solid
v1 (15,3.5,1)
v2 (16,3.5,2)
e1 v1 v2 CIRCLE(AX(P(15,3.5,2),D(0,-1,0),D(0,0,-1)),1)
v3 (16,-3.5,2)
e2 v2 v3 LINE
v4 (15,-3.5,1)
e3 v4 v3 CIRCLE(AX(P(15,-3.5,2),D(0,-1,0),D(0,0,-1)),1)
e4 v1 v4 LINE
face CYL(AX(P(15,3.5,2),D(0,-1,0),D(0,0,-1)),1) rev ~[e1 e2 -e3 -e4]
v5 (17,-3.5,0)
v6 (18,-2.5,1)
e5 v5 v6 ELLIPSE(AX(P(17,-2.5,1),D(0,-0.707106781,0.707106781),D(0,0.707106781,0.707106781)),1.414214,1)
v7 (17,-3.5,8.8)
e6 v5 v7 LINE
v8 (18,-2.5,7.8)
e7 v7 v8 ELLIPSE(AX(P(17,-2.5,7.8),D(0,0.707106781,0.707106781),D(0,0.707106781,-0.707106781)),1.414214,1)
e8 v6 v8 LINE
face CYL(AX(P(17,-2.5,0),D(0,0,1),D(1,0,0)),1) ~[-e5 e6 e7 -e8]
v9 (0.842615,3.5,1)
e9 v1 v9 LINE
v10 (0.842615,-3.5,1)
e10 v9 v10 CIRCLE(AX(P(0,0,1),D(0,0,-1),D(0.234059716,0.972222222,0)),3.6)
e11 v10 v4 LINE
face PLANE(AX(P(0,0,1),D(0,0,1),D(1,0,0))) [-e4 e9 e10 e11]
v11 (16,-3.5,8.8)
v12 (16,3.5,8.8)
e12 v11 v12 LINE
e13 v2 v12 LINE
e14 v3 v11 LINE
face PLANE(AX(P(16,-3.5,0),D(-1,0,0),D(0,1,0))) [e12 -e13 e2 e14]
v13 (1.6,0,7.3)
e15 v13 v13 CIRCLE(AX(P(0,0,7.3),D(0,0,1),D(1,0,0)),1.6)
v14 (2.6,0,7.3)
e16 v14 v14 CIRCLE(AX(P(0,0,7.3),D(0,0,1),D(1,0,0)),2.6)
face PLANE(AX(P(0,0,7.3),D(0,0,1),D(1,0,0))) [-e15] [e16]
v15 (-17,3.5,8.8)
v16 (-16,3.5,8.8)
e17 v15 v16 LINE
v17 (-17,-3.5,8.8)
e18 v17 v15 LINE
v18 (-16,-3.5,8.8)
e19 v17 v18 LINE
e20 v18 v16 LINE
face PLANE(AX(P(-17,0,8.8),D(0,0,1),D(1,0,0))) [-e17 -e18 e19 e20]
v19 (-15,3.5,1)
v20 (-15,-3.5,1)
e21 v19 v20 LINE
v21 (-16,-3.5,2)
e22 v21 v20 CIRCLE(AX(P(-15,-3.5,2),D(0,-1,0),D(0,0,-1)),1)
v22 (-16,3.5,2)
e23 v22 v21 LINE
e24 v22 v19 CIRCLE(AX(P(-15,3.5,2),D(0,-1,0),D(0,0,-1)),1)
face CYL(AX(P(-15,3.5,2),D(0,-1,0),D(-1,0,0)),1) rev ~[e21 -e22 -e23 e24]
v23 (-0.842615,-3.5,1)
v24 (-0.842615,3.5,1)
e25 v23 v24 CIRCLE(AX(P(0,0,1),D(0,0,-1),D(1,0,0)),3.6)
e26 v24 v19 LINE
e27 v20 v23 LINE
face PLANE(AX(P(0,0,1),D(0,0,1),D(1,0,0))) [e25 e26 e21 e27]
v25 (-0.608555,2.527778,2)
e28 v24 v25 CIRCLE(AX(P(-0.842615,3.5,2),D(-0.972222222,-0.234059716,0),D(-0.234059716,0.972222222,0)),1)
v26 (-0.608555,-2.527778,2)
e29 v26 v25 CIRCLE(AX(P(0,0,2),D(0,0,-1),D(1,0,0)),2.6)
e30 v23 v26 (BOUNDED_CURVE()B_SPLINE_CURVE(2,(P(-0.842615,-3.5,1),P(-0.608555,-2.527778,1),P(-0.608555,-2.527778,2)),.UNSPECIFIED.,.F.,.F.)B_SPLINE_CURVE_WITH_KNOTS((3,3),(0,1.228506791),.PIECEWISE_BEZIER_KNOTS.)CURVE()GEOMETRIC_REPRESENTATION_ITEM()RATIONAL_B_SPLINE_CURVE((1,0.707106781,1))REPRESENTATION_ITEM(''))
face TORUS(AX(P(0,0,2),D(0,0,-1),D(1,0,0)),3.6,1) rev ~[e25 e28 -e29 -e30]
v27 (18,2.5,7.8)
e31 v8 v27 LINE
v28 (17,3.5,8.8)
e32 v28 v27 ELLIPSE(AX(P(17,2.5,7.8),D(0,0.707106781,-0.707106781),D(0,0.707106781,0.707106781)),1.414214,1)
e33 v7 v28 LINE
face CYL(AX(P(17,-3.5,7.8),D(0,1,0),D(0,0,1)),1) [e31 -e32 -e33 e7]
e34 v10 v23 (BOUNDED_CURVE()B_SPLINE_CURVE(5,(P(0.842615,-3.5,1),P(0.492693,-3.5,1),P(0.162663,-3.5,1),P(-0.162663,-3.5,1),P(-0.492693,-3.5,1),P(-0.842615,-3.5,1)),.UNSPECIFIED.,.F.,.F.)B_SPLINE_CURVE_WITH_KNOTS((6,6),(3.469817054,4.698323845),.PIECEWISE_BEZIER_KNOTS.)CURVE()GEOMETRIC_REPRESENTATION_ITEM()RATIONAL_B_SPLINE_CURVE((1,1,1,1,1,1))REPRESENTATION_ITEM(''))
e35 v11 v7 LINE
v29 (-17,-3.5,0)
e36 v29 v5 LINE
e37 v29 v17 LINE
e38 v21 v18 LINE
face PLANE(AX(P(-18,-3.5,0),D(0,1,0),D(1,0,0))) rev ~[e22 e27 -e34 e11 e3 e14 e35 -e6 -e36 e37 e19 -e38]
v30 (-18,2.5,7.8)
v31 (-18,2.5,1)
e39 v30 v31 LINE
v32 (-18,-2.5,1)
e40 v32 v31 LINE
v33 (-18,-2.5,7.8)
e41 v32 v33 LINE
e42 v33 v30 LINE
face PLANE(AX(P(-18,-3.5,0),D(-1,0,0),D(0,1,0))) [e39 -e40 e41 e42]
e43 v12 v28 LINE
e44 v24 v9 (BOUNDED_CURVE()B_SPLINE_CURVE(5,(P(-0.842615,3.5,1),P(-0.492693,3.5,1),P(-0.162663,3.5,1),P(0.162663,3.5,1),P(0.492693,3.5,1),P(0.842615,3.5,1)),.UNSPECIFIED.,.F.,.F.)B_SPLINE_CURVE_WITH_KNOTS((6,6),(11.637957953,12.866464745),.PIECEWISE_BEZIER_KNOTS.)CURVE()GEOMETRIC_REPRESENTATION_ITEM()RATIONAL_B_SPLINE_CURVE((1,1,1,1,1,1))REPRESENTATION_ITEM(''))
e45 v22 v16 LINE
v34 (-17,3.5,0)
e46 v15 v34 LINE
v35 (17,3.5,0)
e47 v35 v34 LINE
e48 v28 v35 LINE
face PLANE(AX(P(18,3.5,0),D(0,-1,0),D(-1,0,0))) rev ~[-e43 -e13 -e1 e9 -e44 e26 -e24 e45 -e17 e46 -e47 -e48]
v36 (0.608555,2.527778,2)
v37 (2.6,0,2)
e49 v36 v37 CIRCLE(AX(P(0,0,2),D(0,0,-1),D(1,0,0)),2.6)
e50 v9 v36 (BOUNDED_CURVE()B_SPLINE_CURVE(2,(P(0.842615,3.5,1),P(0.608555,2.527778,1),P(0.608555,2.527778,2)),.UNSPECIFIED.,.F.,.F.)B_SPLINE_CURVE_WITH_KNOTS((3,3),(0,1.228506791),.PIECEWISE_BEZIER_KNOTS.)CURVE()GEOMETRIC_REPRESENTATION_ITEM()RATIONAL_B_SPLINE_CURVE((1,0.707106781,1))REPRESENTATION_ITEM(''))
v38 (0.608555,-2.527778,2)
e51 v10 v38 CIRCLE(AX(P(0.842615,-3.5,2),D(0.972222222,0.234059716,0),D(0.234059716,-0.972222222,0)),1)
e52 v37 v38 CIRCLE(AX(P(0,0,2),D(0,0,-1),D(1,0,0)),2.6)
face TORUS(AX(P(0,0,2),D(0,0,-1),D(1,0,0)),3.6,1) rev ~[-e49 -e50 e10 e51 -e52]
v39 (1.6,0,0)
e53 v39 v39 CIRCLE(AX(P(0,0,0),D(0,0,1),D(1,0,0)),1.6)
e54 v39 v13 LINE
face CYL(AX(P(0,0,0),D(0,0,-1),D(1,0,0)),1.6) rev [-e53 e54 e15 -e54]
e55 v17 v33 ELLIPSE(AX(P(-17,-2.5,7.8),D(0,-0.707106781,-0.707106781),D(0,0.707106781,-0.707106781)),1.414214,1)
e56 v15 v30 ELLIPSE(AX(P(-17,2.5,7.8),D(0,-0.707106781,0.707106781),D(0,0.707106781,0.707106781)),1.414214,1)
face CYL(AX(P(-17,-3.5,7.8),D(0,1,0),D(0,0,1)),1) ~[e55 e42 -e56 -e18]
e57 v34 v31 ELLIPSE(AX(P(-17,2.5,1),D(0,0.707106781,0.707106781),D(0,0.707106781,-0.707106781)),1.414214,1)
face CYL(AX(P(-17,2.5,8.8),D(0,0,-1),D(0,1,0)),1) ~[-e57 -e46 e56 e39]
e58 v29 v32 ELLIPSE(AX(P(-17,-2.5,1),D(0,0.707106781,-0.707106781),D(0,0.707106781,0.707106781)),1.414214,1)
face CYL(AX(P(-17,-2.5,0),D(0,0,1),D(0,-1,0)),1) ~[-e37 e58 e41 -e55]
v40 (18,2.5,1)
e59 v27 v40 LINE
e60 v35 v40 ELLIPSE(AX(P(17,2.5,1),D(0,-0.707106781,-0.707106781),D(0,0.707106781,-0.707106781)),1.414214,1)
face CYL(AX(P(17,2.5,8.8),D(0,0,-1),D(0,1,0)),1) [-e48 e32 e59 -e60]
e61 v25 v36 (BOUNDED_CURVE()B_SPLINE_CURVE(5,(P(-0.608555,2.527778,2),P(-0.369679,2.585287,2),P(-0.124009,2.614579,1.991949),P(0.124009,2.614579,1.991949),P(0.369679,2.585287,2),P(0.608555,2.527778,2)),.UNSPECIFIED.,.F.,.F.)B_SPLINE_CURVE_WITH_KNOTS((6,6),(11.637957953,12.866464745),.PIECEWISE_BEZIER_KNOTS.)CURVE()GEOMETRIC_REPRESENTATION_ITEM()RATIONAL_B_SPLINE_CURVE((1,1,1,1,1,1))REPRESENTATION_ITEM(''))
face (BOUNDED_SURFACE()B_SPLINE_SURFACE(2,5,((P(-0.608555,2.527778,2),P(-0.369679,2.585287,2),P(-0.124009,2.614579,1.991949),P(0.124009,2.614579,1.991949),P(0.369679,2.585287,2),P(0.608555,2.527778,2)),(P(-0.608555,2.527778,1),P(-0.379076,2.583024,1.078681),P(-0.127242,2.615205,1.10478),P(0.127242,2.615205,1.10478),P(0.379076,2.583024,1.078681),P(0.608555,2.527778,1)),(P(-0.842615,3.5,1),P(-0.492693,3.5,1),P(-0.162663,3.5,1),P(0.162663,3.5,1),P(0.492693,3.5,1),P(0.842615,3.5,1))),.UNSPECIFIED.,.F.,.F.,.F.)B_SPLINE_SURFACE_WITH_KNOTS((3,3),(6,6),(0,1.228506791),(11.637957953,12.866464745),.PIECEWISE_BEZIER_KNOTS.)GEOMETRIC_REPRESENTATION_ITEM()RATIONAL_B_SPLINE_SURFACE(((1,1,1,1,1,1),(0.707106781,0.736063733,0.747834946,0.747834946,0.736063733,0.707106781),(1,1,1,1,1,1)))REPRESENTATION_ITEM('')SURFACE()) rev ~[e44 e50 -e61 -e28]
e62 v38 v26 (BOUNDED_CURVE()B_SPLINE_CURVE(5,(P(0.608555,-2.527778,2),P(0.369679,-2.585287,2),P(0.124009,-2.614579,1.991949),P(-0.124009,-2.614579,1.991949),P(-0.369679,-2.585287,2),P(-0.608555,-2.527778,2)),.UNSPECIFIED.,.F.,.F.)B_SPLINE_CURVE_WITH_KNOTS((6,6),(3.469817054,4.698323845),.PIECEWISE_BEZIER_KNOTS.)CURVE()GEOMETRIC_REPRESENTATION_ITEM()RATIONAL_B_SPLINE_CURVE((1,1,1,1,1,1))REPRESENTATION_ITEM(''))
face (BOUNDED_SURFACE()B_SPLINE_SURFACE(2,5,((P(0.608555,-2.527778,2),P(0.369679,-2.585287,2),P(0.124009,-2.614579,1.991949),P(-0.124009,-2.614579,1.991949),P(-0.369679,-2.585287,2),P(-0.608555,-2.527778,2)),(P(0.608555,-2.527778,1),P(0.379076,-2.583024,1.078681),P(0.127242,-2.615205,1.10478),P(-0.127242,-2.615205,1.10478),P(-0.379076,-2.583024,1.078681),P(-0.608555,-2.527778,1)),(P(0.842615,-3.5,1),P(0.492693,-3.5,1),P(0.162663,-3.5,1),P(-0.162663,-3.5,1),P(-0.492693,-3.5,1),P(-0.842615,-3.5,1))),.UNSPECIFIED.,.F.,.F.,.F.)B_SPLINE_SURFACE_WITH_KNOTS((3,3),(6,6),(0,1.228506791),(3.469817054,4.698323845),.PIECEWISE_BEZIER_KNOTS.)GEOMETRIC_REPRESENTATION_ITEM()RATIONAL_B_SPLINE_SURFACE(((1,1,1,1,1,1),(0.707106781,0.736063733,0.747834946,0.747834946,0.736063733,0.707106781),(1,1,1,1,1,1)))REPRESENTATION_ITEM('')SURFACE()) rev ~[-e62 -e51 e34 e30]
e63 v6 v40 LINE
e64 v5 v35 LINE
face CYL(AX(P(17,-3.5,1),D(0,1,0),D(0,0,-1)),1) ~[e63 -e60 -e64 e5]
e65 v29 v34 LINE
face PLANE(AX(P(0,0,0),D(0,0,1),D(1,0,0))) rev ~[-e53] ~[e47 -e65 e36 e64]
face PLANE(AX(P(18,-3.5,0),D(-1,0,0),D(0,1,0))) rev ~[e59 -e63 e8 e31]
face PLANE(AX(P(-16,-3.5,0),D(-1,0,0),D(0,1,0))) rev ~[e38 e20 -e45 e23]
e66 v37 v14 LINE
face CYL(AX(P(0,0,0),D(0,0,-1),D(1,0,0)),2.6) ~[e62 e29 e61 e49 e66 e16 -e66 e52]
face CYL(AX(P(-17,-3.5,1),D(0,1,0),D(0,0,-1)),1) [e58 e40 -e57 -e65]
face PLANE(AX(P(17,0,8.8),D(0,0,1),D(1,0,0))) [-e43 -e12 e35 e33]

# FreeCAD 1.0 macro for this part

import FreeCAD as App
import Part
import Sketcher
from FreeCAD import Vector


def edges_at(feature, points):
    """Names of the edges that pass closest to the given points."""
    edges = feature.Shape.Edges
    near = lambda p: min(range(len(edges)), key=lambda i: edges[i].distToShape(Part.Vertex(*p))[0])
    return sorted({f"Edge{near(p) + 1}" for p in points})


def add_polygon(sketch, points):
    """Adds a closed chain of lines whose ends are joined by coincident constraints."""
    first, n = sketch.GeometryCount, len(points)
    for a, b in zip(points, points[1:] + points[:1]):
        sketch.addGeometry(Part.LineSegment(App.Vector(*a, 0), App.Vector(*b, 0)), False)
    for i in range(n):
        sketch.addConstraint(Sketcher.Constraint("Coincident", first + i, 2, first + (i + 1) % n, 1))

doc = App.newDocument("Part")
body = doc.addObject("PartDesign::Body", "Body")

sketch1 = body.newObject("Sketcher::SketchObject", "Sketch")
sketch1.AttachmentSupport = (doc.getObject("XY_Plane"), [""])
sketch1.MapMode = "FlatFace"
add_polygon(sketch1, [(-18, 3.5), (-18, -3.5), (18, -3.5), (18, 3.5)])
sketch1.addGeometry(Part.Circle(Vector(0, 0, 0), Vector(0, 0, 1), 1.6), False)
sketch1.addConstraint([
    Sketcher.Constraint("Vertical", 0),
    Sketcher.Constraint("Horizontal", 1),
    Sketcher.Constraint("Vertical", 2),
    Sketcher.Constraint("Horizontal", 3),
    Sketcher.Constraint("Coincident", 4, 3, -1, 1),
    Sketcher.Constraint("Symmetric", 0, 2, 2, 2, -1, 1),
    Sketcher.Constraint("Diameter", 4, 3.2),
    Sketcher.Constraint("DistanceX", 1, 1, 1, 2, 36.0),
    Sketcher.Constraint("DistanceY", 0, 2, 0, 1, 7.0),
])
pad1 = body.newObject("PartDesign::Pad", "Pad")
pad1.Profile = sketch1
pad1.Length = 1

sketch2 = body.newObject("Sketcher::SketchObject", "Sketch001")
sketch2.AttachmentSupport = (doc.getObject("XY_Plane"), [""])
sketch2.MapMode = "FlatFace"
add_polygon(sketch2, [(-18, 3.5), (-18, -3.5), (-16, -3.5), (-16, 3.5)])
add_polygon(sketch2, [(16, 3.5), (16, -3.5), (18, -3.5), (18, 3.5)])
sketch2.addConstraint([
    Sketcher.Constraint("Vertical", 0),
    Sketcher.Constraint("Horizontal", 1),
    Sketcher.Constraint("Vertical", 2),
    Sketcher.Constraint("Horizontal", 3),
    Sketcher.Constraint("Vertical", 4),
    Sketcher.Constraint("Horizontal", 5),
    Sketcher.Constraint("Vertical", 6),
    Sketcher.Constraint("Horizontal", 7),
    Sketcher.Constraint("Symmetric", 2, 2, 4, 2, -1, 1),
    Sketcher.Constraint("Symmetric", 0, 2, 6, 2, -1, 1),
    Sketcher.Constraint("Horizontal", 1, 2, 4, 2),
    Sketcher.Constraint("DistanceX", 1, 1, 1, 2, 2.0),
    Sketcher.Constraint("DistanceY", 0, 2, 0, 1, 7.0),
    Sketcher.Constraint("DistanceX", 0, 2, -1, 1, 18.0),
])
pad2 = body.newObject("PartDesign::Pad", "Pad001")
pad2.Profile = sketch2
pad2.Length = 8.8

sketch3 = body.newObject("Sketcher::SketchObject", "Sketch002")
sketch3.AttachmentSupport = (doc.getObject("XY_Plane"), [""])
sketch3.MapMode = "FlatFace"
sketch3.addGeometry([
    Part.Circle(Vector(0, 0, 0), Vector(0, 0, 1), 2.6),
    Part.Circle(Vector(0, 0, 0), Vector(0, 0, 1), 1.6),
], False)
sketch3.addConstraint([
    Sketcher.Constraint("Coincident", 0, 3, -1, 1),
    Sketcher.Constraint("Coincident", 1, 3, -1, 1),
    Sketcher.Constraint("Diameter", 0, 5.2),
    Sketcher.Constraint("Diameter", 1, 3.2),
])
pad3 = body.newObject("PartDesign::Pad", "Pad002")
pad3.Profile = sketch3
pad3.Length = 7.3
doc.recompute()

fillet = body.newObject("PartDesign::Fillet", "Fillet")
fillet.Base = (pad3, edges_at(pad3, [
    (-16, 0, 1),
    (16, 0, 1),
    (-18, 0, 0),
    (18, 0, 0),
    (-18, 0, 8.8),
    (18, 0, 8.8),
    (-18, -3.5, 4.4),
    (-18, 3.5, 4.4),
    (18, -3.5, 4.4),
    (18, 3.5, 4.4),
]))
fillet.Radius = 1
doc.recompute()

fillet2 = body.newObject("PartDesign::Fillet", "Fillet001")
fillet2.Base = (fillet, edges_at(fillet, [(-2.6, 0, 1)]))
fillet2.Radius = 1

doc.recompute()
